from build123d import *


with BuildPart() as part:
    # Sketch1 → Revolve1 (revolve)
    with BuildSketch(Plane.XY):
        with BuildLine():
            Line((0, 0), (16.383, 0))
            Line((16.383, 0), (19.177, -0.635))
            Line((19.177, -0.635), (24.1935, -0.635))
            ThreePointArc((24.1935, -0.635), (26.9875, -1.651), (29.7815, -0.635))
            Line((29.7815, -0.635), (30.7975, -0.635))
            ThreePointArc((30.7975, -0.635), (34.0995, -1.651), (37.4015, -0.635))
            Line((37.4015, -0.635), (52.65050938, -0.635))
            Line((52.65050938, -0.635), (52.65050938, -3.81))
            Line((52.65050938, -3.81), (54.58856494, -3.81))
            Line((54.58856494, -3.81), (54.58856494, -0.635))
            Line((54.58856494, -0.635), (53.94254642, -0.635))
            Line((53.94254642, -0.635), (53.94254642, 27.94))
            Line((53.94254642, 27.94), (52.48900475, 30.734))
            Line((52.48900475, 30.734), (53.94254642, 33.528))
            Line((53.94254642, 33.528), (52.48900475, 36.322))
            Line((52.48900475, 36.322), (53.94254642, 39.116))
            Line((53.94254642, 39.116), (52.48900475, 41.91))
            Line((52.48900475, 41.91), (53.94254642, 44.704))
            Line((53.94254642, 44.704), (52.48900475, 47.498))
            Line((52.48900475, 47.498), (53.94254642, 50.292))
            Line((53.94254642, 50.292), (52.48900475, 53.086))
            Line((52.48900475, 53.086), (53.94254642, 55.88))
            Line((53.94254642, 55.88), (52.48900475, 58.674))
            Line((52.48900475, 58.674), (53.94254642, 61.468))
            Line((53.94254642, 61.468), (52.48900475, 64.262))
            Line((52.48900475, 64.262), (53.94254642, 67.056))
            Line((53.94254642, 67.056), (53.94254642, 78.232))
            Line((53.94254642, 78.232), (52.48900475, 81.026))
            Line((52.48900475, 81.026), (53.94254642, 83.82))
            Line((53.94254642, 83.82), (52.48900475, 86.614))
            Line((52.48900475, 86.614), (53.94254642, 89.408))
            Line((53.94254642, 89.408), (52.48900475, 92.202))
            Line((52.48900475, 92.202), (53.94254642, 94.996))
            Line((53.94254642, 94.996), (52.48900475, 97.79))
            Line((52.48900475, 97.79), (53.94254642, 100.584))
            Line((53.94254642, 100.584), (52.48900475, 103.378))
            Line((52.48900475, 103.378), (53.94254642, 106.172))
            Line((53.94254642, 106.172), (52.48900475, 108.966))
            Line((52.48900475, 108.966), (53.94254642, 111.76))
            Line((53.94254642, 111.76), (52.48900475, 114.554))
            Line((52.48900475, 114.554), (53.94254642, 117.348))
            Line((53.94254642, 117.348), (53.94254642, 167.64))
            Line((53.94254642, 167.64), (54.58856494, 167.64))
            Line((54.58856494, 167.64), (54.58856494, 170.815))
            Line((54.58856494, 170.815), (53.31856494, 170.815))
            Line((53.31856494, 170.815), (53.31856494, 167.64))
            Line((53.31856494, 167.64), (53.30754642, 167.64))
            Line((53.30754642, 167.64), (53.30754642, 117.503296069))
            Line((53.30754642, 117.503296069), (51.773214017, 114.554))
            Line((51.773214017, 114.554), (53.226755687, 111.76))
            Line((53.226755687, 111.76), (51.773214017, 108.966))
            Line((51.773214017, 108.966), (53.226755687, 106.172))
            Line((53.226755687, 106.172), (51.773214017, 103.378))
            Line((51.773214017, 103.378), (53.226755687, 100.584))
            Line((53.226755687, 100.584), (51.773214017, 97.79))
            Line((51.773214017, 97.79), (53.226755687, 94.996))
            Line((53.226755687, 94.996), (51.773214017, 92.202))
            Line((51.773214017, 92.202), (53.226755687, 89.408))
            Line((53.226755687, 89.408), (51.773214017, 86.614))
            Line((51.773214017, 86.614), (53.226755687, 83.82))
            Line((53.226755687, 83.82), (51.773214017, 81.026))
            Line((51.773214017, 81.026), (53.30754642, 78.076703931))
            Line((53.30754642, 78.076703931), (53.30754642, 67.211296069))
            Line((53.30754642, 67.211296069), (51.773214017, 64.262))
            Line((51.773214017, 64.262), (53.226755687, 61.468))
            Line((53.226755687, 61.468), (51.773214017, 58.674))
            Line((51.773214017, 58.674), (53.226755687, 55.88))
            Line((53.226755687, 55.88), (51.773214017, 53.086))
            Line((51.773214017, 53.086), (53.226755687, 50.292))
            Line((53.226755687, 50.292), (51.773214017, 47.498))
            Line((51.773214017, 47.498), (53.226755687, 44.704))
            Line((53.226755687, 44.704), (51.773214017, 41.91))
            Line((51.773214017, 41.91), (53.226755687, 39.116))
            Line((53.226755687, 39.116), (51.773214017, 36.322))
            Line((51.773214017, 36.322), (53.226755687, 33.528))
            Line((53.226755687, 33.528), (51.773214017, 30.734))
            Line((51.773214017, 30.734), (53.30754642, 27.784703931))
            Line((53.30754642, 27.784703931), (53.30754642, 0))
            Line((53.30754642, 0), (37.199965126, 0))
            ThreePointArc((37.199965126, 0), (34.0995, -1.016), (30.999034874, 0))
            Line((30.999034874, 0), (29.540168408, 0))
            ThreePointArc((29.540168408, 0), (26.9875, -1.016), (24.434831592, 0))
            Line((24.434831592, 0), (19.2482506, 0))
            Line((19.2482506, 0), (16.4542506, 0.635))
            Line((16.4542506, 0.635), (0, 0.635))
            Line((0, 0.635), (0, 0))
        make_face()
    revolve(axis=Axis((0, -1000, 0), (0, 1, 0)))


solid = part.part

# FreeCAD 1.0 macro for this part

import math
import FreeCAD as App
import Part
import Sketcher

V = App.Vector
Q = App.Units.Quantity

doc = App.newDocument("Part")
body = doc.addObject("PartDesign::Body", "Body")

sketch1 = body.newObject("Sketcher::SketchObject", "Sketch")
sketch1.AttachmentSupport = (doc.getObject("XY_Plane"), [""])
sketch1.MapMode = "FlatFace"
sketch1.addGeometry([
    Part.LineSegment(V(0, 0, 0), V(16.383, 0, 0)),
    Part.LineSegment(V(16.383, 0, 0), V(19.177, -0.635, 0)),
    Part.LineSegment(V(19.177, -0.635, 0), V(24.194, -0.635, 0)),
    Part.ArcOfCircle(Part.Circle(V(26.988, 2.699, 0), V(0, 0, 1), 4.35), math.radians(-130), math.radians(-50)),
    Part.LineSegment(V(29.782, -0.635, 0), V(30.797, -0.635, 0)),
    Part.ArcOfCircle(Part.Circle(V(34.099, 4.223, 0), V(0, 0, 1), 5.874), math.radians(-124), math.radians(-56)),
    Part.LineSegment(V(37.401, -0.635, 0), V(52.651, -0.635, 0)),
    Part.LineSegment(V(52.651, -0.635, 0), V(52.651, -3.81, 0)),
    Part.LineSegment(V(52.651, -3.81, 0), V(54.589, -3.81, 0)),
    Part.LineSegment(V(54.589, -3.81, 0), V(54.589, -0.635, 0)),
    Part.LineSegment(V(54.589, -0.635, 0), V(53.943, -0.635, 0)),
    Part.LineSegment(V(53.943, -0.635, 0), V(53.943, 27.94, 0)),
    Part.LineSegment(V(53.943, 27.94, 0), V(52.489, 30.734, 0)),
    Part.LineSegment(V(52.489, 30.734, 0), V(53.943, 33.528, 0)),
    Part.LineSegment(V(53.943, 33.528, 0), V(52.489, 36.322, 0)),
    Part.LineSegment(V(52.489, 36.322, 0), V(53.943, 39.116, 0)),
    Part.LineSegment(V(53.943, 39.116, 0), V(52.489, 41.91, 0)),
    Part.LineSegment(V(52.489, 41.91, 0), V(53.943, 44.704, 0)),
    Part.LineSegment(V(53.943, 44.704, 0), V(52.489, 47.498, 0)),
    Part.LineSegment(V(52.489, 47.498, 0), V(53.943, 50.292, 0)),
    Part.LineSegment(V(53.943, 50.292, 0), V(52.489, 53.086, 0)),
    Part.LineSegment(V(52.489, 53.086, 0), V(53.943, 55.88, 0)),
    Part.LineSegment(V(53.943, 55.88, 0), V(52.489, 58.674, 0)),
    Part.LineSegment(V(52.489, 58.674, 0), V(53.943, 61.468, 0)),
    Part.LineSegment(V(53.943, 61.468, 0), V(52.489, 64.262, 0)),
    Part.LineSegment(V(52.489, 64.262, 0), V(53.943, 67.056, 0)),
    Part.LineSegment(V(53.943, 67.056, 0), V(53.943, 78.232, 0)),
    Part.LineSegment(V(53.943, 78.232, 0), V(52.489, 81.026, 0)),
    Part.LineSegment(V(52.489, 81.026, 0), V(53.943, 83.82, 0)),
    Part.LineSegment(V(53.943, 83.82, 0), V(52.489, 86.614, 0)),
    Part.LineSegment(V(52.489, 86.614, 0), V(53.943, 89.408, 0)),
    Part.LineSegment(V(53.943, 89.408, 0), V(52.489, 92.202, 0)),
    Part.LineSegment(V(52.489, 92.202, 0), V(53.943, 94.996, 0)),
    Part.LineSegment(V(53.943, 94.996, 0), V(52.489, 97.79, 0)),
    Part.LineSegment(V(52.489, 97.79, 0), V(53.943, 100.584, 0)),
    Part.LineSegment(V(53.943, 100.584, 0), V(52.489, 103.378, 0)),
    Part.LineSegment(V(52.489, 103.378, 0), V(53.943, 106.172, 0)),
    Part.LineSegment(V(53.943, 106.172, 0), V(52.489, 108.966, 0)),
    Part.LineSegment(V(52.489, 108.966, 0), V(53.943, 111.76, 0)),
    Part.LineSegment(V(53.943, 111.76, 0), V(52.489, 114.554, 0)),
    Part.LineSegment(V(52.489, 114.554, 0), V(53.943, 117.348, 0)),
    Part.LineSegment(V(53.943, 117.348, 0), V(53.943, 167.64, 0)),
    Part.LineSegment(V(53.943, 167.64, 0), V(54.589, 167.64, 0)),
    Part.LineSegment(V(54.589, 167.64, 0), V(54.589, 170.815, 0)),
    Part.LineSegment(V(54.589, 170.815, 0), V(53.319, 170.815, 0)),
    Part.LineSegment(V(53.319, 170.815, 0), V(53.319, 167.64, 0)),
    Part.LineSegment(V(53.319, 167.64, 0), V(53.308, 167.64, 0)),
    Part.LineSegment(V(53.308, 167.64, 0), V(53.308, 117.503, 0)),
    Part.LineSegment(V(53.308, 117.503, 0), V(51.773, 114.554, 0)),
    Part.LineSegment(V(51.773, 114.554, 0), V(53.227, 111.76, 0)),
    Part.LineSegment(V(53.227, 111.76, 0), V(51.773, 108.966, 0)),
    Part.LineSegment(V(51.773, 108.966, 0), V(53.227, 106.172, 0)),
    Part.LineSegment(V(53.227, 106.172, 0), V(51.773, 103.378, 0)),
    Part.LineSegment(V(51.773, 103.378, 0), V(53.227, 100.584, 0)),
    Part.LineSegment(V(53.227, 100.584, 0), V(51.773, 97.79, 0)),
    Part.LineSegment(V(51.773, 97.79, 0), V(53.227, 94.996, 0)),
    Part.LineSegment(V(53.227, 94.996, 0), V(51.773, 92.202, 0)),
    Part.LineSegment(V(51.773, 92.202, 0), V(53.227, 89.408, 0)),
    Part.LineSegment(V(53.227, 89.408, 0), V(51.773, 86.614, 0)),
    Part.LineSegment(V(51.773, 86.614, 0), V(53.227, 83.82, 0)),
    Part.LineSegment(V(53.227, 83.82, 0), V(51.773, 81.026, 0)),
    Part.LineSegment(V(51.773, 81.026, 0), V(53.308, 78.077, 0)),
    Part.LineSegment(V(53.308, 78.077, 0), V(53.308, 67.211, 0)),
    Part.LineSegment(V(53.308, 67.211, 0), V(51.773, 64.262, 0)),
    Part.LineSegment(V(51.773, 64.262, 0), V(53.227, 61.468, 0)),
    Part.LineSegment(V(53.227, 61.468, 0), V(51.773, 58.674, 0)),
    Part.LineSegment(V(51.773, 58.674, 0), V(53.227, 55.88, 0)),
    Part.LineSegment(V(53.227, 55.88, 0), V(51.773, 53.086, 0)),
    Part.LineSegment(V(51.773, 53.086, 0), V(53.227, 50.292, 0)),
    Part.LineSegment(V(53.227, 50.292, 0), V(51.773, 47.498, 0)),
    Part.LineSegment(V(51.773, 47.498, 0), V(53.227, 44.704, 0)),
    Part.LineSegment(V(53.227, 44.704, 0), V(51.773, 41.91, 0)),
    Part.LineSegment(V(51.773, 41.91, 0), V(53.227, 39.116, 0)),
    Part.LineSegment(V(53.227, 39.116, 0), V(51.773, 36.322, 0)),
    Part.LineSegment(V(51.773, 36.322, 0), V(53.227, 33.528, 0)),
    Part.LineSegment(V(53.227, 33.528, 0), V(51.773, 30.734, 0)),
    Part.LineSegment(V(51.773, 30.734, 0), V(53.308, 27.785, 0)),
    Part.LineSegment(V(53.308, 27.785, 0), V(53.308, 0, 0)),
    Part.LineSegment(V(53.308, 0, 0), V(37.2, 0, 0)),
    Part.ArcOfCircle(Part.Circle(V(34.099, 4.223, 0), V(0, 0, 1), 5.239), math.radians(-126), math.radians(-54)),
    Part.LineSegment(V(30.999, 0, 0), V(29.54, 0, 0)),
    Part.ArcOfCircle(Part.Circle(V(26.988, 2.699, 0), V(0, 0, 1), 3.715), math.radians(-133), math.radians(-47)),
    Part.LineSegment(V(24.435, 0, 0), V(19.248, 0, 0)),
    Part.LineSegment(V(19.248, 0, 0), V(16.454, 0.635, 0)),
    Part.LineSegment(V(16.454, 0.635, 0), V(0, 0.635, 0)),
    Part.LineSegment(V(0, 0.635, 0), V(0, 0, 0)),
], False)
sketch1.addConstraint([
    Sketcher.Constraint("Coincident", 0, 2, 1, 1),
    Sketcher.Constraint("Coincident", 1, 2, 2, 1),
    Sketcher.Constraint("Coincident", 2, 2, 3, 1),
    Sketcher.Constraint("Coincident", 3, 2, 4, 1),
    Sketcher.Constraint("Coincident", 4, 2, 5, 1),
    Sketcher.Constraint("Coincident", 5, 2, 6, 1),
    Sketcher.Constraint("Coincident", 6, 2, 7, 1),
    Sketcher.Constraint("Coincident", 7, 2, 8, 1),
    Sketcher.Constraint("Coincident", 8, 2, 9, 1),
    Sketcher.Constraint("Coincident", 9, 2, 10, 1),
    Sketcher.Constraint("Coincident", 10, 2, 11, 1),
    Sketcher.Constraint("Coincident", 11, 2, 12, 1),
    Sketcher.Constraint("Coincident", 12, 2, 13, 1),
    Sketcher.Constraint("Coincident", 13, 2, 14, 1),
    Sketcher.Constraint("Coincident", 14, 2, 15, 1),
    Sketcher.Constraint("Coincident", 15, 2, 16, 1),
    Sketcher.Constraint("Coincident", 16, 2, 17, 1),
    Sketcher.Constraint("Coincident", 17, 2, 18, 1),
    Sketcher.Constraint("Coincident", 18, 2, 19, 1),
    Sketcher.Constraint("Coincident", 19, 2, 20, 1),
    Sketcher.Constraint("Coincident", 20, 2, 21, 1),
    Sketcher.Constraint("Coincident", 21, 2, 22, 1),
    Sketcher.Constraint("Coincident", 22, 2, 23, 1),
    Sketcher.Constraint("Coincident", 23, 2, 24, 1),
    Sketcher.Constraint("Coincident", 24, 2, 25, 1),
    Sketcher.Constraint("Coincident", 25, 2, 26, 1),
    Sketcher.Constraint("Coincident", 26, 2, 27, 1),
    Sketcher.Constraint("Coincident", 27, 2, 28, 1),
    Sketcher.Constraint("Coincident", 28, 2, 29, 1),
    Sketcher.Constraint("Coincident", 29, 2, 30, 1),
    Sketcher.Constraint("Coincident", 30, 2, 31, 1),
    Sketcher.Constraint("Coincident", 31, 2, 32, 1),
    Sketcher.Constraint("Coincident", 32, 2, 33, 1),
    Sketcher.Constraint("Coincident", 33, 2, 34, 1),
    Sketcher.Constraint("Coincident", 34, 2, 35, 1),
    Sketcher.Constraint("Coincident", 35, 2, 36, 1),
    Sketcher.Constraint("Coincident", 36, 2, 37, 1),
    Sketcher.Constraint("Coincident", 37, 2, 38, 1),
    Sketcher.Constraint("Coincident", 38, 2, 39, 1),
    Sketcher.Constraint("Coincident", 39, 2, 40, 1),
    Sketcher.Constraint("Coincident", 40, 2, 41, 1),
    Sketcher.Constraint("Coincident", 41, 2, 42, 1),
    Sketcher.Constraint("Coincident", 42, 2, 43, 1),
    Sketcher.Constraint("Coincident", 43, 2, 44, 1),
    Sketcher.Constraint("Coincident", 44, 2, 45, 1),
    Sketcher.Constraint("Coincident", 45, 2, 46, 1),
    Sketcher.Constraint("Coincident", 46, 2, 47, 1),
    Sketcher.Constraint("Coincident", 47, 2, 48, 1),
    Sketcher.Constraint("Coincident", 48, 2, 49, 1),
    Sketcher.Constraint("Coincident", 49, 2, 50, 1),
    Sketcher.Constraint("Coincident", 50, 2, 51, 1),
    Sketcher.Constraint("Coincident", 51, 2, 52, 1),
    Sketcher.Constraint("Coincident", 52, 2, 53, 1),
    Sketcher.Constraint("Coincident", 53, 2, 54, 1),
    Sketcher.Constraint("Coincident", 54, 2, 55, 1),
    Sketcher.Constraint("Coincident", 55, 2, 56, 1),
    Sketcher.Constraint("Coincident", 56, 2, 57, 1),
    Sketcher.Constraint("Coincident", 57, 2, 58, 1),
    Sketcher.Constraint("Coincident", 58, 2, 59, 1),
    Sketcher.Constraint("Coincident", 59, 2, 60, 1),
    Sketcher.Constraint("Coincident", 60, 2, 61, 1),
    Sketcher.Constraint("Coincident", 61, 2, 62, 1),
    Sketcher.Constraint("Coincident", 62, 2, 63, 1),
    Sketcher.Constraint("Coincident", 63, 2, 64, 1),
    Sketcher.Constraint("Coincident", 64, 2, 65, 1),
    Sketcher.Constraint("Coincident", 65, 2, 66, 1),
    Sketcher.Constraint("Coincident", 66, 2, 67, 1),
    Sketcher.Constraint("Coincident", 67, 2, 68, 1),
    Sketcher.Constraint("Coincident", 68, 2, 69, 1),
    Sketcher.Constraint("Coincident", 69, 2, 70, 1),
    Sketcher.Constraint("Coincident", 70, 2, 71, 1),
    Sketcher.Constraint("Coincident", 71, 2, 72, 1),
    Sketcher.Constraint("Coincident", 72, 2, 73, 1),
    Sketcher.Constraint("Coincident", 73, 2, 74, 1),
    Sketcher.Constraint("Coincident", 74, 2, 75, 1),
    Sketcher.Constraint("Coincident", 75, 2, 76, 1),
    Sketcher.Constraint("Coincident", 76, 2, 77, 1),
    Sketcher.Constraint("Coincident", 77, 2, 78, 1),
    Sketcher.Constraint("Coincident", 78, 2, 79, 2),
    Sketcher.Constraint("Coincident", 79, 1, 80, 1),
    Sketcher.Constraint("Coincident", 80, 2, 81, 2),
    Sketcher.Constraint("Coincident", 81, 1, 82, 1),
    Sketcher.Constraint("Coincident", 82, 2, 83, 1),
    Sketcher.Constraint("Coincident", 83, 2, 84, 1),
    Sketcher.Constraint("Coincident", 84, 2, 85, 1),
    Sketcher.Constraint("Coincident", 85, 2, 0, 1),
    Sketcher.Constraint("Horizontal", 0),
    Sketcher.Constraint("Horizontal", 2),
    Sketcher.Constraint("Horizontal", 4),
    Sketcher.Constraint("Horizontal", 6),
    Sketcher.Constraint("Vertical", 7),
    Sketcher.Constraint("Horizontal", 8),
    Sketcher.Constraint("Vertical", 9),
    Sketcher.Constraint("Horizontal", 10),
    Sketcher.Constraint("Vertical", 11),
    Sketcher.Constraint("Vertical", 26),
    Sketcher.Constraint("Vertical", 41),
    Sketcher.Constraint("Horizontal", 42),
    Sketcher.Constraint("Vertical", 43),
    Sketcher.Constraint("Horizontal", 44),
    Sketcher.Constraint("Vertical", 45),
    Sketcher.Constraint("Horizontal", 46),
    Sketcher.Constraint("Vertical", 47),
    Sketcher.Constraint("Vertical", 62),
    Sketcher.Constraint("Vertical", 77),
    Sketcher.Constraint("Horizontal", 78),
    Sketcher.Constraint("Horizontal", 80),
    Sketcher.Constraint("Horizontal", 82),
    Sketcher.Constraint("Horizontal", 84),
    Sketcher.Constraint("Vertical", 85),
    Sketcher.Constraint("Coincident", 85, 2, -1, 1),
    Sketcher.Constraint("Coincident", 79, 3, 5, 3),
    Sketcher.Constraint("Coincident", 81, 3, 3, 3),
    Sketcher.Constraint("PointOnObject", 77, 2, -1),
    Sketcher.Constraint("PointOnObject", 79, 1, -1),
    Sketcher.Constraint("PointOnObject", 81, 1, -1),
    Sketcher.Constraint("Parallel", 12, 14),
    Sketcher.Constraint("Parallel", 13, 15),
    Sketcher.Constraint("Parallel", 14, 16),
    Sketcher.Constraint("Parallel", 15, 17),
    Sketcher.Constraint("Parallel", 16, 18),
    Sketcher.Constraint("Parallel", 17, 19),
    Sketcher.Constraint("Parallel", 18, 20),
    Sketcher.Constraint("Parallel", 19, 21),
    Sketcher.Constraint("Parallel", 20, 22),
    Sketcher.Constraint("Parallel", 21, 23),
    Sketcher.Constraint("Parallel", 22, 24),
    Sketcher.Constraint("Parallel", 23, 25),
    Sketcher.Constraint("Parallel", 24, 27),
    Sketcher.Constraint("Parallel", 25, 28),
    Sketcher.Constraint("Parallel", 27, 29),
    Sketcher.Constraint("Parallel", 28, 30),
    Sketcher.Constraint("Parallel", 29, 31),
    Sketcher.Constraint("Parallel", 30, 32),
    Sketcher.Constraint("Parallel", 31, 33),
    Sketcher.Constraint("Parallel", 32, 34),
    Sketcher.Constraint("Parallel", 33, 35),
    Sketcher.Constraint("Parallel", 34, 36),
    Sketcher.Constraint("Parallel", 35, 37),
    Sketcher.Constraint("Parallel", 36, 38),
    Sketcher.Constraint("Parallel", 37, 39),
    Sketcher.Constraint("Parallel", 38, 40),
    Sketcher.Constraint("Parallel", 40, 48),
    Sketcher.Constraint("Parallel", 39, 49),
    Sketcher.Constraint("Parallel", 48, 50),
    Sketcher.Constraint("Parallel", 49, 51),
    Sketcher.Constraint("Parallel", 50, 52),
    Sketcher.Constraint("Parallel", 51, 53),
    Sketcher.Constraint("Parallel", 52, 54),
    Sketcher.Constraint("Parallel", 53, 55),
    Sketcher.Constraint("Parallel", 54, 56),
    Sketcher.Constraint("Parallel", 55, 57),
    Sketcher.Constraint("Parallel", 56, 58),
    Sketcher.Constraint("Parallel", 57, 59),
    Sketcher.Constraint("Parallel", 58, 60),
    Sketcher.Constraint("Parallel", 59, 61),
    Sketcher.Constraint("Parallel", 60, 63),
    Sketcher.Constraint("Parallel", 61, 64),
    Sketcher.Constraint("Parallel", 63, 65),
    Sketcher.Constraint("Parallel", 64, 66),
    Sketcher.Constraint("Parallel", 65, 67),
    Sketcher.Constraint("Parallel", 66, 68),
    Sketcher.Constraint("Parallel", 67, 69),
    Sketcher.Constraint("Parallel", 68, 70),
    Sketcher.Constraint("Parallel", 69, 71),
    Sketcher.Constraint("Parallel", 70, 72),
    Sketcher.Constraint("Parallel", 71, 73),
    Sketcher.Constraint("Parallel", 72, 74),
    Sketcher.Constraint("Parallel", 73, 75),
    Sketcher.Constraint("Parallel", 74, 76),
    Sketcher.Constraint("Parallel", 1, 83),
    Sketcher.Constraint("Horizontal", 2, 2, 3, 2),
    Sketcher.Constraint("Horizontal", 4, 2, 5, 2),
    Sketcher.Constraint("Horizontal", 6, 2, 9, 2),
    Sketcher.Constraint("Horizontal", 42, 2, 45, 2),
    Sketcher.Constraint("Horizontal", 39, 2, 48, 2),
    Sketcher.Constraint("Horizontal", 38, 2, 49, 2),
    Sketcher.Constraint("Horizontal", 37, 2, 50, 2),
    Sketcher.Constraint("Horizontal", 36, 2, 51, 2),
    Sketcher.Constraint("Horizontal", 35, 2, 52, 2),
    Sketcher.Constraint("Horizontal", 34, 2, 53, 2),
    Sketcher.Constraint("Horizontal", 33, 2, 54, 2),
    Sketcher.Constraint("Horizontal", 32, 2, 55, 2),
    Sketcher.Constraint("Horizontal", 31, 2, 56, 2),
    Sketcher.Constraint("Horizontal", 30, 2, 57, 2),
    Sketcher.Constraint("Horizontal", 29, 2, 58, 2),
    Sketcher.Constraint("Horizontal", 28, 2, 59, 2),
    Sketcher.Constraint("Horizontal", 27, 2, 60, 2),
    Sketcher.Constraint("Horizontal", 24, 2, 63, 2),
    Sketcher.Constraint("Horizontal", 23, 2, 64, 2),
    Sketcher.Constraint("Horizontal", 22, 2, 65, 2),
    Sketcher.Constraint("Horizontal", 21, 2, 66, 2),
    Sketcher.Constraint("Horizontal", 20, 2, 67, 2),
    Sketcher.Constraint("Horizontal", 19, 2, 68, 2),
    Sketcher.Constraint("Horizontal", 18, 2, 69, 2),
    Sketcher.Constraint("Horizontal", 17, 2, 70, 2),
    Sketcher.Constraint("Horizontal", 16, 2, 71, 2),
    Sketcher.Constraint("Horizontal", 15, 2, 72, 2),
    Sketcher.Constraint("Horizontal", 14, 2, 73, 2),
    Sketcher.Constraint("Horizontal", 13, 2, 74, 2),
    Sketcher.Constraint("Horizontal", 12, 2, 75, 2),
    Sketcher.Constraint("Vertical", 11, 2, 13, 2),
    Sketcher.Constraint("Vertical", 12, 2, 14, 2),
    Sketcher.Constraint("Vertical", 13, 2, 15, 2),
    Sketcher.Constraint("Vertical", 14, 2, 16, 2),
    Sketcher.Constraint("Vertical", 15, 2, 17, 2),
    Sketcher.Constraint("Vertical", 16, 2, 18, 2),
    Sketcher.Constraint("Vertical", 17, 2, 19, 2),
    Sketcher.Constraint("Vertical", 18, 2, 20, 2),
    Sketcher.Constraint("Vertical", 19, 2, 21, 2),
    Sketcher.Constraint("Vertical", 20, 2, 22, 2),
    Sketcher.Constraint("Vertical", 21, 2, 23, 2),
    Sketcher.Constraint("Vertical", 22, 2, 24, 2),
    Sketcher.Constraint("Vertical", 23, 2, 25, 2),
    Sketcher.Constraint("Vertical", 24, 2, 27, 2),
    Sketcher.Constraint("Vertical", 26, 2, 28, 2),
    Sketcher.Constraint("Vertical", 27, 2, 29, 2),
    Sketcher.Constraint("Vertical", 28, 2, 30, 2),
    Sketcher.Constraint("Vertical", 29, 2, 31, 2),
    Sketcher.Constraint("Vertical", 30, 2, 32, 2),
    Sketcher.Constraint("Vertical", 31, 2, 33, 2),
    Sketcher.Constraint("Vertical", 32, 2, 34, 2),
    Sketcher.Constraint("Vertical", 33, 2, 35, 2),
    Sketcher.Constraint("Vertical", 34, 2, 36, 2),
    Sketcher.Constraint("Vertical", 35, 2, 37, 2),
    Sketcher.Constraint("Vertical", 36, 2, 38, 2),
    Sketcher.Constraint("Vertical", 37, 2, 39, 2),
    Sketcher.Constraint("Vertical", 38, 2, 40, 2),
    Sketcher.Constraint("Vertical", 9, 2, 42, 2),
    Sketcher.Constraint("Vertical", 47, 2, 61, 2),
    Sketcher.Constraint("Vertical", 60, 2, 63, 2),
    Sketcher.Constraint("Vertical", 62, 2, 76, 2),
    Sketcher.Constraint("Equal", 9, 43),
    Sketcher.Constraint("Equal", 12, 13),
    Sketcher.Constraint("Equal", 1, 83),
    Sketcher.Constraint("DistanceX", 4, 1, 4, 2, Q("0.04 in")),
    Sketcher.Constraint("DistanceX", 44, 2, 44, 1, Q("0.05 in")),
    Sketcher.Constraint("DistanceY", 26, 1, 26, 2, Q("0.44 in")),
    Sketcher.Constraint("DistanceY", 41, 1, 41, 2, Q("1.98 in")),
    Sketcher.Constraint("DistanceY", -1, 1, 11, 2, Q("1.1 in")),
    Sketcher.Constraint("DistanceY", -1, 1, 21, 2, Q("2.2 in")),
    Sketcher.Constraint("DistanceX", 0, 1, 0, 2, Q("0.645 in")),
    Sketcher.Constraint("DistanceY", 7, 2, 7, 1, Q("0.125 in")),
    Sketcher.Constraint("DistanceY", 11, 1, 11, 2, Q("1.125 in")),
    Sketcher.Constraint("DistanceX", 2, 1, 2, 2, Q("0.1975 in")),
    Sketcher.Constraint("DistanceX", -1, 1, 3, 3, Q("1.0625 in")),
    Sketcher.Constraint("DistanceX", -1, 1, 1, 2, Q("0.755 in")),
    Sketcher.Constraint("Radius", 3, 4.34975),
    Sketcher.Constraint("Radius", 5, 5.87375),
    Sketcher.Constraint("Radius", 79, 5.23875),
    Sketcher.Constraint("Radius", 81, 3.71475),
    Sketcher.Constraint("DistanceX", -1, 1, 5, 3, Q("1.3425 in")),
    Sketcher.Constraint("DistanceX", 6, 1, 6, 2, 15.249009),
    Sketcher.Constraint("DistanceX", 10, 2, 10, 1, 0.646019),
    Sketcher.Constraint("DistanceX", 46, 2, 46, 1, 0.011019),
    Sketcher.Constraint("DistanceX", 78, 2, 78, 1, 16.107581),
    Sketcher.Constraint("DistanceX", 82, 2, 82, 1, 5.186581),
    Sketcher.Constraint("Distance", 12, 3.149479),
    Sketcher.Constraint("DistanceY", 47, 2, 47, 1, 50.136704),
])
revolution = body.newObject("PartDesign::Revolution", "Revolution")
revolution.Profile = sketch1
revolution.ReferenceAxis = (sketch1, ["V_Axis"])
revolution.Angle = 360

doc.recompute()
